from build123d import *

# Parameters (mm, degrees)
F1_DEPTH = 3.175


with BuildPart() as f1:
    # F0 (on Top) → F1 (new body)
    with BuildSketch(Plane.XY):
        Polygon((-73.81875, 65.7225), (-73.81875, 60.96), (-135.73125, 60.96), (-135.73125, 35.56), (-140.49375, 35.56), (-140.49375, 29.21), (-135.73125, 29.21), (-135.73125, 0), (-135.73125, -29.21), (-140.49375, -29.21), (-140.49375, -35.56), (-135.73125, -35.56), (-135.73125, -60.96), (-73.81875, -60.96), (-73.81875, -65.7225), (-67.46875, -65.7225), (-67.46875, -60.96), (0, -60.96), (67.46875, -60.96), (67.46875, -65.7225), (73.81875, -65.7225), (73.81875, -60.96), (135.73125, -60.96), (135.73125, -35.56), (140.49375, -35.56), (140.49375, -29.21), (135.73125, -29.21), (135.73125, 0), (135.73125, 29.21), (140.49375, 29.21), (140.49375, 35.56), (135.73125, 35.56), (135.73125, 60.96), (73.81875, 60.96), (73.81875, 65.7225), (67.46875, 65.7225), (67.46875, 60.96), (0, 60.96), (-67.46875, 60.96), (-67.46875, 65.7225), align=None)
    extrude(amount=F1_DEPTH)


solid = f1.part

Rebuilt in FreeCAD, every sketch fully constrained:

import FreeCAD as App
import Part
import Sketcher

V = App.Vector
Q = App.Units.Quantity

doc = App.newDocument("Part")
body = doc.addObject("PartDesign::Body", "Body")

sketch1 = body.newObject("Sketcher::SketchObject", "Sketch")
sketch1.AttachmentSupport = (doc.getObject("XY_Plane"), [""])
sketch1.MapMode = "FlatFace"
sketch1.addGeometry([
    Part.LineSegment(V(-73.81875, 65.7225, 0), V(-73.81875, 60.96, 0)),
    Part.LineSegment(V(-73.81875, 60.96, 0), V(-135.73125, 60.96, 0)),
    Part.LineSegment(V(-135.73125, 60.96, 0), V(-135.73125, 35.56, 0)),
    Part.LineSegment(V(-135.73125, 35.56, 0), V(-140.49375, 35.56, 0)),
    Part.LineSegment(V(-140.49375, 35.56, 0), V(-140.49375, 29.21, 0)),
    Part.LineSegment(V(-140.49375, 29.21, 0), V(-135.73125, 29.21, 0)),
    Part.LineSegment(V(-135.73125, 29.21, 0), V(-135.73125, -29.21, 0)),
    Part.LineSegment(V(-135.73125, -29.21, 0), V(-140.49375, -29.21, 0)),
    Part.LineSegment(V(-140.49375, -29.21, 0), V(-140.49375, -35.56, 0)),
    Part.LineSegment(V(-140.49375, -35.56, 0), V(-135.73125, -35.56, 0)),
    Part.LineSegment(V(-135.73125, -35.56, 0), V(-135.73125, -60.96, 0)),
    Part.LineSegment(V(-135.73125, -60.96, 0), V(-73.81875, -60.96, 0)),
    Part.LineSegment(V(-73.81875, -60.96, 0), V(-73.81875, -65.7225, 0)),
    Part.LineSegment(V(-73.81875, -65.7225, 0), V(-67.46875, -65.7225, 0)),
    Part.LineSegment(V(-67.46875, -65.7225, 0), V(-67.46875, -60.96, 0)),
    Part.LineSegment(V(-67.46875, -60.96, 0), V(67.46875, -60.96, 0)),
    Part.LineSegment(V(67.46875, -60.96, 0), V(67.46875, -65.7225, 0)),
    Part.LineSegment(V(67.46875, -65.7225, 0), V(73.81875, -65.7225, 0)),
    Part.LineSegment(V(73.81875, -65.7225, 0), V(73.81875, -60.96, 0)),
    Part.LineSegment(V(73.81875, -60.96, 0), V(135.73125, -60.96, 0)),
    Part.LineSegment(V(135.73125, -60.96, 0), V(135.73125, -35.56, 0)),
    Part.LineSegment(V(135.73125, -35.56, 0), V(140.49375, -35.56, 0)),
    Part.LineSegment(V(140.49375, -35.56, 0), V(140.49375, -29.21, 0)),
    Part.LineSegment(V(140.49375, -29.21, 0), V(135.73125, -29.21, 0)),
    Part.LineSegment(V(135.73125, -29.21, 0), V(135.73125, 29.21, 0)),
    Part.LineSegment(V(135.73125, 29.21, 0), V(140.49375, 29.21, 0)),
    Part.LineSegment(V(140.49375, 29.21, 0), V(140.49375, 35.56, 0)),
    Part.LineSegment(V(140.49375, 35.56, 0), V(135.73125, 35.56, 0)),
    Part.LineSegment(V(135.73125, 35.56, 0), V(135.73125, 60.96, 0)),
    Part.LineSegment(V(135.73125, 60.96, 0), V(73.81875, 60.96, 0)),
    Part.LineSegment(V(73.81875, 60.96, 0), V(73.81875, 65.7225, 0)),
    Part.LineSegment(V(73.81875, 65.7225, 0), V(67.46875, 65.7225, 0)),
    Part.LineSegment(V(67.46875, 65.7225, 0), V(67.46875, 60.96, 0)),
    Part.LineSegment(V(67.46875, 60.96, 0), V(-67.46875, 60.96, 0)),
    Part.LineSegment(V(-67.46875, 60.96, 0), V(-67.46875, 65.7225, 0)),
    Part.LineSegment(V(-67.46875, 65.7225, 0), V(-73.81875, 65.7225, 0)),
], False)
sketch1.addConstraint([
    Sketcher.Constraint("Coincident", 0, 2, 1, 1),
    Sketcher.Constraint("Coincident", 1, 2, 2, 1),
    Sketcher.Constraint("Coincident", 2, 2, 3, 1),
    Sketcher.Constraint("Coincident", 3, 2, 4, 1),
    Sketcher.Constraint("Coincident", 4, 2, 5, 1),
    Sketcher.Constraint("Coincident", 5, 2, 6, 1),
    Sketcher.Constraint("Coincident", 6, 2, 7, 1),
    Sketcher.Constraint("Coincident", 7, 2, 8, 1),
    Sketcher.Constraint("Coincident", 8, 2, 9, 1),
    Sketcher.Constraint("Coincident", 9, 2, 10, 1),
    Sketcher.Constraint("Coincident", 10, 2, 11, 1),
    Sketcher.Constraint("Coincident", 11, 2, 12, 1),
    Sketcher.Constraint("Coincident", 12, 2, 13, 1),
    Sketcher.Constraint("Coincident", 13, 2, 14, 1),
    Sketcher.Constraint("Coincident", 14, 2, 15, 1),
    Sketcher.Constraint("Coincident", 15, 2, 16, 1),
    Sketcher.Constraint("Coincident", 16, 2, 17, 1),
    Sketcher.Constraint("Coincident", 17, 2, 18, 1),
    Sketcher.Constraint("Coincident", 18, 2, 19, 1),
    Sketcher.Constraint("Coincident", 19, 2, 20, 1),
    Sketcher.Constraint("Coincident", 20, 2, 21, 1),
    Sketcher.Constraint("Coincident", 21, 2, 22, 1),
    Sketcher.Constraint("Coincident", 22, 2, 23, 1),
    Sketcher.Constraint("Coincident", 23, 2, 24, 1),
    Sketcher.Constraint("Coincident", 24, 2, 25, 1),
    Sketcher.Constraint("Coincident", 25, 2, 26, 1),
    Sketcher.Constraint("Coincident", 26, 2, 27, 1),
    Sketcher.Constraint("Coincident", 27, 2, 28, 1),
    Sketcher.Constraint("Coincident", 28, 2, 29, 1),
    Sketcher.Constraint("Coincident", 29, 2, 30, 1),
    Sketcher.Constraint("Coincident", 30, 2, 31, 1),
    Sketcher.Constraint("Coincident", 31, 2, 32, 1),
    Sketcher.Constraint("Coincident", 32, 2, 33, 1),
    Sketcher.Constraint("Coincident", 33, 2, 34, 1),
    Sketcher.Constraint("Coincident", 34, 2, 35, 1),
    Sketcher.Constraint("Coincident", 35, 2, 0, 1),
    Sketcher.Constraint("Vertical", 0),
    Sketcher.Constraint("Horizontal", 1),
    Sketcher.Constraint("Vertical", 2),
    Sketcher.Constraint("Horizontal", 3),
    Sketcher.Constraint("Vertical", 4),
    Sketcher.Constraint("Horizontal", 5),
    Sketcher.Constraint("Vertical", 6),
    Sketcher.Constraint("Horizontal", 7),
    Sketcher.Constraint("Vertical", 8),
    Sketcher.Constraint("Horizontal", 9),
    Sketcher.Constraint("Vertical", 10),
    Sketcher.Constraint("Horizontal", 11),
    Sketcher.Constraint("Vertical", 12),
    Sketcher.Constraint("Horizontal", 13),
    Sketcher.Constraint("Vertical", 14),
    Sketcher.Constraint("Horizontal", 15),
    Sketcher.Constraint("Vertical", 16),
    Sketcher.Constraint("Horizontal", 17),
    Sketcher.Constraint("Vertical", 18),
    Sketcher.Constraint("Horizontal", 19),
    Sketcher.Constraint("Vertical", 20),
    Sketcher.Constraint("Horizontal", 21),
    Sketcher.Constraint("Vertical", 22),
    Sketcher.Constraint("Horizontal", 23),
    Sketcher.Constraint("Vertical", 24),
    Sketcher.Constraint("Horizontal", 25),
    Sketcher.Constraint("Vertical", 26),
    Sketcher.Constraint("Horizontal", 27),
    Sketcher.Constraint("Vertical", 28),
    Sketcher.Constraint("Horizontal", 29),
    Sketcher.Constraint("Vertical", 30),
    Sketcher.Constraint("Horizontal", 31),
    Sketcher.Constraint("Vertical", 32),
    Sketcher.Constraint("Horizontal", 33),
    Sketcher.Constraint("Vertical", 34),
    Sketcher.Constraint("Horizontal", 35),
    Sketcher.Constraint("Symmetric", 0, 2, 18, 2, -1, 1),
    Sketcher.Constraint("Symmetric", 2, 2, 20, 2, -1, 1),
    Sketcher.Constraint("Symmetric", 4, 2, 22, 2, -1, 1),
    Sketcher.Constraint("Symmetric", 6, 2, 24, 2, -1, 1),
    Sketcher.Constraint("Symmetric", 8, 2, 26, 2, -1, 1),
    Sketcher.Constraint("Symmetric", 10, 2, 28, 2, -1, 1),
    Sketcher.Constraint("Symmetric", 12, 2, 30, 2, -1, 1),
    Sketcher.Constraint("Symmetric", 14, 2, 32, 2, -1, 1),
    Sketcher.Constraint("Symmetric", 16, 2, 34, 2, -1, 1),
    Sketcher.Constraint("Symmetric", 13, 2, 16, 2, -2),
    Sketcher.Constraint("Symmetric", 11, 2, 18, 2, -2),
    Sketcher.Constraint("Symmetric", 9, 2, 20, 2, -2),
    Sketcher.Constraint("Symmetric", 7, 2, 22, 2, -2),
    Sketcher.Constraint("Horizontal", 11, 2, 14, 2),
    Sketcher.Constraint("Vertical", 2, 2, 5, 2),
    Sketcher.Constraint("Equal", 27, 0),
    Sketcher.Constraint("Equal", 35, 4),
    Sketcher.Constraint("DistanceY", 2, 2, 2, 1, Q("1 in")),
    Sketcher.Constraint("DistanceY", 6, 2, 6, 1, Q("2.3 in")),
    Sketcher.Constraint("DistanceX", 14, 2, 19, 2, Q("8 in")),
    Sketcher.Constraint("DistanceX", 13, 1, 13, 2, Q("0.25 in")),
    Sketcher.Constraint("DistanceX", 1, 2, 1, 1, Q("2.4375 in")),
    Sketcher.Constraint("DistanceX", 3, 2, 3, 1, Q("0.1875 in")),
])
pad1 = body.newObject("PartDesign::Pad", "Pad")
pad1.Profile = sketch1
pad1.Length = Q("0.125 in")

doc.recompute()
